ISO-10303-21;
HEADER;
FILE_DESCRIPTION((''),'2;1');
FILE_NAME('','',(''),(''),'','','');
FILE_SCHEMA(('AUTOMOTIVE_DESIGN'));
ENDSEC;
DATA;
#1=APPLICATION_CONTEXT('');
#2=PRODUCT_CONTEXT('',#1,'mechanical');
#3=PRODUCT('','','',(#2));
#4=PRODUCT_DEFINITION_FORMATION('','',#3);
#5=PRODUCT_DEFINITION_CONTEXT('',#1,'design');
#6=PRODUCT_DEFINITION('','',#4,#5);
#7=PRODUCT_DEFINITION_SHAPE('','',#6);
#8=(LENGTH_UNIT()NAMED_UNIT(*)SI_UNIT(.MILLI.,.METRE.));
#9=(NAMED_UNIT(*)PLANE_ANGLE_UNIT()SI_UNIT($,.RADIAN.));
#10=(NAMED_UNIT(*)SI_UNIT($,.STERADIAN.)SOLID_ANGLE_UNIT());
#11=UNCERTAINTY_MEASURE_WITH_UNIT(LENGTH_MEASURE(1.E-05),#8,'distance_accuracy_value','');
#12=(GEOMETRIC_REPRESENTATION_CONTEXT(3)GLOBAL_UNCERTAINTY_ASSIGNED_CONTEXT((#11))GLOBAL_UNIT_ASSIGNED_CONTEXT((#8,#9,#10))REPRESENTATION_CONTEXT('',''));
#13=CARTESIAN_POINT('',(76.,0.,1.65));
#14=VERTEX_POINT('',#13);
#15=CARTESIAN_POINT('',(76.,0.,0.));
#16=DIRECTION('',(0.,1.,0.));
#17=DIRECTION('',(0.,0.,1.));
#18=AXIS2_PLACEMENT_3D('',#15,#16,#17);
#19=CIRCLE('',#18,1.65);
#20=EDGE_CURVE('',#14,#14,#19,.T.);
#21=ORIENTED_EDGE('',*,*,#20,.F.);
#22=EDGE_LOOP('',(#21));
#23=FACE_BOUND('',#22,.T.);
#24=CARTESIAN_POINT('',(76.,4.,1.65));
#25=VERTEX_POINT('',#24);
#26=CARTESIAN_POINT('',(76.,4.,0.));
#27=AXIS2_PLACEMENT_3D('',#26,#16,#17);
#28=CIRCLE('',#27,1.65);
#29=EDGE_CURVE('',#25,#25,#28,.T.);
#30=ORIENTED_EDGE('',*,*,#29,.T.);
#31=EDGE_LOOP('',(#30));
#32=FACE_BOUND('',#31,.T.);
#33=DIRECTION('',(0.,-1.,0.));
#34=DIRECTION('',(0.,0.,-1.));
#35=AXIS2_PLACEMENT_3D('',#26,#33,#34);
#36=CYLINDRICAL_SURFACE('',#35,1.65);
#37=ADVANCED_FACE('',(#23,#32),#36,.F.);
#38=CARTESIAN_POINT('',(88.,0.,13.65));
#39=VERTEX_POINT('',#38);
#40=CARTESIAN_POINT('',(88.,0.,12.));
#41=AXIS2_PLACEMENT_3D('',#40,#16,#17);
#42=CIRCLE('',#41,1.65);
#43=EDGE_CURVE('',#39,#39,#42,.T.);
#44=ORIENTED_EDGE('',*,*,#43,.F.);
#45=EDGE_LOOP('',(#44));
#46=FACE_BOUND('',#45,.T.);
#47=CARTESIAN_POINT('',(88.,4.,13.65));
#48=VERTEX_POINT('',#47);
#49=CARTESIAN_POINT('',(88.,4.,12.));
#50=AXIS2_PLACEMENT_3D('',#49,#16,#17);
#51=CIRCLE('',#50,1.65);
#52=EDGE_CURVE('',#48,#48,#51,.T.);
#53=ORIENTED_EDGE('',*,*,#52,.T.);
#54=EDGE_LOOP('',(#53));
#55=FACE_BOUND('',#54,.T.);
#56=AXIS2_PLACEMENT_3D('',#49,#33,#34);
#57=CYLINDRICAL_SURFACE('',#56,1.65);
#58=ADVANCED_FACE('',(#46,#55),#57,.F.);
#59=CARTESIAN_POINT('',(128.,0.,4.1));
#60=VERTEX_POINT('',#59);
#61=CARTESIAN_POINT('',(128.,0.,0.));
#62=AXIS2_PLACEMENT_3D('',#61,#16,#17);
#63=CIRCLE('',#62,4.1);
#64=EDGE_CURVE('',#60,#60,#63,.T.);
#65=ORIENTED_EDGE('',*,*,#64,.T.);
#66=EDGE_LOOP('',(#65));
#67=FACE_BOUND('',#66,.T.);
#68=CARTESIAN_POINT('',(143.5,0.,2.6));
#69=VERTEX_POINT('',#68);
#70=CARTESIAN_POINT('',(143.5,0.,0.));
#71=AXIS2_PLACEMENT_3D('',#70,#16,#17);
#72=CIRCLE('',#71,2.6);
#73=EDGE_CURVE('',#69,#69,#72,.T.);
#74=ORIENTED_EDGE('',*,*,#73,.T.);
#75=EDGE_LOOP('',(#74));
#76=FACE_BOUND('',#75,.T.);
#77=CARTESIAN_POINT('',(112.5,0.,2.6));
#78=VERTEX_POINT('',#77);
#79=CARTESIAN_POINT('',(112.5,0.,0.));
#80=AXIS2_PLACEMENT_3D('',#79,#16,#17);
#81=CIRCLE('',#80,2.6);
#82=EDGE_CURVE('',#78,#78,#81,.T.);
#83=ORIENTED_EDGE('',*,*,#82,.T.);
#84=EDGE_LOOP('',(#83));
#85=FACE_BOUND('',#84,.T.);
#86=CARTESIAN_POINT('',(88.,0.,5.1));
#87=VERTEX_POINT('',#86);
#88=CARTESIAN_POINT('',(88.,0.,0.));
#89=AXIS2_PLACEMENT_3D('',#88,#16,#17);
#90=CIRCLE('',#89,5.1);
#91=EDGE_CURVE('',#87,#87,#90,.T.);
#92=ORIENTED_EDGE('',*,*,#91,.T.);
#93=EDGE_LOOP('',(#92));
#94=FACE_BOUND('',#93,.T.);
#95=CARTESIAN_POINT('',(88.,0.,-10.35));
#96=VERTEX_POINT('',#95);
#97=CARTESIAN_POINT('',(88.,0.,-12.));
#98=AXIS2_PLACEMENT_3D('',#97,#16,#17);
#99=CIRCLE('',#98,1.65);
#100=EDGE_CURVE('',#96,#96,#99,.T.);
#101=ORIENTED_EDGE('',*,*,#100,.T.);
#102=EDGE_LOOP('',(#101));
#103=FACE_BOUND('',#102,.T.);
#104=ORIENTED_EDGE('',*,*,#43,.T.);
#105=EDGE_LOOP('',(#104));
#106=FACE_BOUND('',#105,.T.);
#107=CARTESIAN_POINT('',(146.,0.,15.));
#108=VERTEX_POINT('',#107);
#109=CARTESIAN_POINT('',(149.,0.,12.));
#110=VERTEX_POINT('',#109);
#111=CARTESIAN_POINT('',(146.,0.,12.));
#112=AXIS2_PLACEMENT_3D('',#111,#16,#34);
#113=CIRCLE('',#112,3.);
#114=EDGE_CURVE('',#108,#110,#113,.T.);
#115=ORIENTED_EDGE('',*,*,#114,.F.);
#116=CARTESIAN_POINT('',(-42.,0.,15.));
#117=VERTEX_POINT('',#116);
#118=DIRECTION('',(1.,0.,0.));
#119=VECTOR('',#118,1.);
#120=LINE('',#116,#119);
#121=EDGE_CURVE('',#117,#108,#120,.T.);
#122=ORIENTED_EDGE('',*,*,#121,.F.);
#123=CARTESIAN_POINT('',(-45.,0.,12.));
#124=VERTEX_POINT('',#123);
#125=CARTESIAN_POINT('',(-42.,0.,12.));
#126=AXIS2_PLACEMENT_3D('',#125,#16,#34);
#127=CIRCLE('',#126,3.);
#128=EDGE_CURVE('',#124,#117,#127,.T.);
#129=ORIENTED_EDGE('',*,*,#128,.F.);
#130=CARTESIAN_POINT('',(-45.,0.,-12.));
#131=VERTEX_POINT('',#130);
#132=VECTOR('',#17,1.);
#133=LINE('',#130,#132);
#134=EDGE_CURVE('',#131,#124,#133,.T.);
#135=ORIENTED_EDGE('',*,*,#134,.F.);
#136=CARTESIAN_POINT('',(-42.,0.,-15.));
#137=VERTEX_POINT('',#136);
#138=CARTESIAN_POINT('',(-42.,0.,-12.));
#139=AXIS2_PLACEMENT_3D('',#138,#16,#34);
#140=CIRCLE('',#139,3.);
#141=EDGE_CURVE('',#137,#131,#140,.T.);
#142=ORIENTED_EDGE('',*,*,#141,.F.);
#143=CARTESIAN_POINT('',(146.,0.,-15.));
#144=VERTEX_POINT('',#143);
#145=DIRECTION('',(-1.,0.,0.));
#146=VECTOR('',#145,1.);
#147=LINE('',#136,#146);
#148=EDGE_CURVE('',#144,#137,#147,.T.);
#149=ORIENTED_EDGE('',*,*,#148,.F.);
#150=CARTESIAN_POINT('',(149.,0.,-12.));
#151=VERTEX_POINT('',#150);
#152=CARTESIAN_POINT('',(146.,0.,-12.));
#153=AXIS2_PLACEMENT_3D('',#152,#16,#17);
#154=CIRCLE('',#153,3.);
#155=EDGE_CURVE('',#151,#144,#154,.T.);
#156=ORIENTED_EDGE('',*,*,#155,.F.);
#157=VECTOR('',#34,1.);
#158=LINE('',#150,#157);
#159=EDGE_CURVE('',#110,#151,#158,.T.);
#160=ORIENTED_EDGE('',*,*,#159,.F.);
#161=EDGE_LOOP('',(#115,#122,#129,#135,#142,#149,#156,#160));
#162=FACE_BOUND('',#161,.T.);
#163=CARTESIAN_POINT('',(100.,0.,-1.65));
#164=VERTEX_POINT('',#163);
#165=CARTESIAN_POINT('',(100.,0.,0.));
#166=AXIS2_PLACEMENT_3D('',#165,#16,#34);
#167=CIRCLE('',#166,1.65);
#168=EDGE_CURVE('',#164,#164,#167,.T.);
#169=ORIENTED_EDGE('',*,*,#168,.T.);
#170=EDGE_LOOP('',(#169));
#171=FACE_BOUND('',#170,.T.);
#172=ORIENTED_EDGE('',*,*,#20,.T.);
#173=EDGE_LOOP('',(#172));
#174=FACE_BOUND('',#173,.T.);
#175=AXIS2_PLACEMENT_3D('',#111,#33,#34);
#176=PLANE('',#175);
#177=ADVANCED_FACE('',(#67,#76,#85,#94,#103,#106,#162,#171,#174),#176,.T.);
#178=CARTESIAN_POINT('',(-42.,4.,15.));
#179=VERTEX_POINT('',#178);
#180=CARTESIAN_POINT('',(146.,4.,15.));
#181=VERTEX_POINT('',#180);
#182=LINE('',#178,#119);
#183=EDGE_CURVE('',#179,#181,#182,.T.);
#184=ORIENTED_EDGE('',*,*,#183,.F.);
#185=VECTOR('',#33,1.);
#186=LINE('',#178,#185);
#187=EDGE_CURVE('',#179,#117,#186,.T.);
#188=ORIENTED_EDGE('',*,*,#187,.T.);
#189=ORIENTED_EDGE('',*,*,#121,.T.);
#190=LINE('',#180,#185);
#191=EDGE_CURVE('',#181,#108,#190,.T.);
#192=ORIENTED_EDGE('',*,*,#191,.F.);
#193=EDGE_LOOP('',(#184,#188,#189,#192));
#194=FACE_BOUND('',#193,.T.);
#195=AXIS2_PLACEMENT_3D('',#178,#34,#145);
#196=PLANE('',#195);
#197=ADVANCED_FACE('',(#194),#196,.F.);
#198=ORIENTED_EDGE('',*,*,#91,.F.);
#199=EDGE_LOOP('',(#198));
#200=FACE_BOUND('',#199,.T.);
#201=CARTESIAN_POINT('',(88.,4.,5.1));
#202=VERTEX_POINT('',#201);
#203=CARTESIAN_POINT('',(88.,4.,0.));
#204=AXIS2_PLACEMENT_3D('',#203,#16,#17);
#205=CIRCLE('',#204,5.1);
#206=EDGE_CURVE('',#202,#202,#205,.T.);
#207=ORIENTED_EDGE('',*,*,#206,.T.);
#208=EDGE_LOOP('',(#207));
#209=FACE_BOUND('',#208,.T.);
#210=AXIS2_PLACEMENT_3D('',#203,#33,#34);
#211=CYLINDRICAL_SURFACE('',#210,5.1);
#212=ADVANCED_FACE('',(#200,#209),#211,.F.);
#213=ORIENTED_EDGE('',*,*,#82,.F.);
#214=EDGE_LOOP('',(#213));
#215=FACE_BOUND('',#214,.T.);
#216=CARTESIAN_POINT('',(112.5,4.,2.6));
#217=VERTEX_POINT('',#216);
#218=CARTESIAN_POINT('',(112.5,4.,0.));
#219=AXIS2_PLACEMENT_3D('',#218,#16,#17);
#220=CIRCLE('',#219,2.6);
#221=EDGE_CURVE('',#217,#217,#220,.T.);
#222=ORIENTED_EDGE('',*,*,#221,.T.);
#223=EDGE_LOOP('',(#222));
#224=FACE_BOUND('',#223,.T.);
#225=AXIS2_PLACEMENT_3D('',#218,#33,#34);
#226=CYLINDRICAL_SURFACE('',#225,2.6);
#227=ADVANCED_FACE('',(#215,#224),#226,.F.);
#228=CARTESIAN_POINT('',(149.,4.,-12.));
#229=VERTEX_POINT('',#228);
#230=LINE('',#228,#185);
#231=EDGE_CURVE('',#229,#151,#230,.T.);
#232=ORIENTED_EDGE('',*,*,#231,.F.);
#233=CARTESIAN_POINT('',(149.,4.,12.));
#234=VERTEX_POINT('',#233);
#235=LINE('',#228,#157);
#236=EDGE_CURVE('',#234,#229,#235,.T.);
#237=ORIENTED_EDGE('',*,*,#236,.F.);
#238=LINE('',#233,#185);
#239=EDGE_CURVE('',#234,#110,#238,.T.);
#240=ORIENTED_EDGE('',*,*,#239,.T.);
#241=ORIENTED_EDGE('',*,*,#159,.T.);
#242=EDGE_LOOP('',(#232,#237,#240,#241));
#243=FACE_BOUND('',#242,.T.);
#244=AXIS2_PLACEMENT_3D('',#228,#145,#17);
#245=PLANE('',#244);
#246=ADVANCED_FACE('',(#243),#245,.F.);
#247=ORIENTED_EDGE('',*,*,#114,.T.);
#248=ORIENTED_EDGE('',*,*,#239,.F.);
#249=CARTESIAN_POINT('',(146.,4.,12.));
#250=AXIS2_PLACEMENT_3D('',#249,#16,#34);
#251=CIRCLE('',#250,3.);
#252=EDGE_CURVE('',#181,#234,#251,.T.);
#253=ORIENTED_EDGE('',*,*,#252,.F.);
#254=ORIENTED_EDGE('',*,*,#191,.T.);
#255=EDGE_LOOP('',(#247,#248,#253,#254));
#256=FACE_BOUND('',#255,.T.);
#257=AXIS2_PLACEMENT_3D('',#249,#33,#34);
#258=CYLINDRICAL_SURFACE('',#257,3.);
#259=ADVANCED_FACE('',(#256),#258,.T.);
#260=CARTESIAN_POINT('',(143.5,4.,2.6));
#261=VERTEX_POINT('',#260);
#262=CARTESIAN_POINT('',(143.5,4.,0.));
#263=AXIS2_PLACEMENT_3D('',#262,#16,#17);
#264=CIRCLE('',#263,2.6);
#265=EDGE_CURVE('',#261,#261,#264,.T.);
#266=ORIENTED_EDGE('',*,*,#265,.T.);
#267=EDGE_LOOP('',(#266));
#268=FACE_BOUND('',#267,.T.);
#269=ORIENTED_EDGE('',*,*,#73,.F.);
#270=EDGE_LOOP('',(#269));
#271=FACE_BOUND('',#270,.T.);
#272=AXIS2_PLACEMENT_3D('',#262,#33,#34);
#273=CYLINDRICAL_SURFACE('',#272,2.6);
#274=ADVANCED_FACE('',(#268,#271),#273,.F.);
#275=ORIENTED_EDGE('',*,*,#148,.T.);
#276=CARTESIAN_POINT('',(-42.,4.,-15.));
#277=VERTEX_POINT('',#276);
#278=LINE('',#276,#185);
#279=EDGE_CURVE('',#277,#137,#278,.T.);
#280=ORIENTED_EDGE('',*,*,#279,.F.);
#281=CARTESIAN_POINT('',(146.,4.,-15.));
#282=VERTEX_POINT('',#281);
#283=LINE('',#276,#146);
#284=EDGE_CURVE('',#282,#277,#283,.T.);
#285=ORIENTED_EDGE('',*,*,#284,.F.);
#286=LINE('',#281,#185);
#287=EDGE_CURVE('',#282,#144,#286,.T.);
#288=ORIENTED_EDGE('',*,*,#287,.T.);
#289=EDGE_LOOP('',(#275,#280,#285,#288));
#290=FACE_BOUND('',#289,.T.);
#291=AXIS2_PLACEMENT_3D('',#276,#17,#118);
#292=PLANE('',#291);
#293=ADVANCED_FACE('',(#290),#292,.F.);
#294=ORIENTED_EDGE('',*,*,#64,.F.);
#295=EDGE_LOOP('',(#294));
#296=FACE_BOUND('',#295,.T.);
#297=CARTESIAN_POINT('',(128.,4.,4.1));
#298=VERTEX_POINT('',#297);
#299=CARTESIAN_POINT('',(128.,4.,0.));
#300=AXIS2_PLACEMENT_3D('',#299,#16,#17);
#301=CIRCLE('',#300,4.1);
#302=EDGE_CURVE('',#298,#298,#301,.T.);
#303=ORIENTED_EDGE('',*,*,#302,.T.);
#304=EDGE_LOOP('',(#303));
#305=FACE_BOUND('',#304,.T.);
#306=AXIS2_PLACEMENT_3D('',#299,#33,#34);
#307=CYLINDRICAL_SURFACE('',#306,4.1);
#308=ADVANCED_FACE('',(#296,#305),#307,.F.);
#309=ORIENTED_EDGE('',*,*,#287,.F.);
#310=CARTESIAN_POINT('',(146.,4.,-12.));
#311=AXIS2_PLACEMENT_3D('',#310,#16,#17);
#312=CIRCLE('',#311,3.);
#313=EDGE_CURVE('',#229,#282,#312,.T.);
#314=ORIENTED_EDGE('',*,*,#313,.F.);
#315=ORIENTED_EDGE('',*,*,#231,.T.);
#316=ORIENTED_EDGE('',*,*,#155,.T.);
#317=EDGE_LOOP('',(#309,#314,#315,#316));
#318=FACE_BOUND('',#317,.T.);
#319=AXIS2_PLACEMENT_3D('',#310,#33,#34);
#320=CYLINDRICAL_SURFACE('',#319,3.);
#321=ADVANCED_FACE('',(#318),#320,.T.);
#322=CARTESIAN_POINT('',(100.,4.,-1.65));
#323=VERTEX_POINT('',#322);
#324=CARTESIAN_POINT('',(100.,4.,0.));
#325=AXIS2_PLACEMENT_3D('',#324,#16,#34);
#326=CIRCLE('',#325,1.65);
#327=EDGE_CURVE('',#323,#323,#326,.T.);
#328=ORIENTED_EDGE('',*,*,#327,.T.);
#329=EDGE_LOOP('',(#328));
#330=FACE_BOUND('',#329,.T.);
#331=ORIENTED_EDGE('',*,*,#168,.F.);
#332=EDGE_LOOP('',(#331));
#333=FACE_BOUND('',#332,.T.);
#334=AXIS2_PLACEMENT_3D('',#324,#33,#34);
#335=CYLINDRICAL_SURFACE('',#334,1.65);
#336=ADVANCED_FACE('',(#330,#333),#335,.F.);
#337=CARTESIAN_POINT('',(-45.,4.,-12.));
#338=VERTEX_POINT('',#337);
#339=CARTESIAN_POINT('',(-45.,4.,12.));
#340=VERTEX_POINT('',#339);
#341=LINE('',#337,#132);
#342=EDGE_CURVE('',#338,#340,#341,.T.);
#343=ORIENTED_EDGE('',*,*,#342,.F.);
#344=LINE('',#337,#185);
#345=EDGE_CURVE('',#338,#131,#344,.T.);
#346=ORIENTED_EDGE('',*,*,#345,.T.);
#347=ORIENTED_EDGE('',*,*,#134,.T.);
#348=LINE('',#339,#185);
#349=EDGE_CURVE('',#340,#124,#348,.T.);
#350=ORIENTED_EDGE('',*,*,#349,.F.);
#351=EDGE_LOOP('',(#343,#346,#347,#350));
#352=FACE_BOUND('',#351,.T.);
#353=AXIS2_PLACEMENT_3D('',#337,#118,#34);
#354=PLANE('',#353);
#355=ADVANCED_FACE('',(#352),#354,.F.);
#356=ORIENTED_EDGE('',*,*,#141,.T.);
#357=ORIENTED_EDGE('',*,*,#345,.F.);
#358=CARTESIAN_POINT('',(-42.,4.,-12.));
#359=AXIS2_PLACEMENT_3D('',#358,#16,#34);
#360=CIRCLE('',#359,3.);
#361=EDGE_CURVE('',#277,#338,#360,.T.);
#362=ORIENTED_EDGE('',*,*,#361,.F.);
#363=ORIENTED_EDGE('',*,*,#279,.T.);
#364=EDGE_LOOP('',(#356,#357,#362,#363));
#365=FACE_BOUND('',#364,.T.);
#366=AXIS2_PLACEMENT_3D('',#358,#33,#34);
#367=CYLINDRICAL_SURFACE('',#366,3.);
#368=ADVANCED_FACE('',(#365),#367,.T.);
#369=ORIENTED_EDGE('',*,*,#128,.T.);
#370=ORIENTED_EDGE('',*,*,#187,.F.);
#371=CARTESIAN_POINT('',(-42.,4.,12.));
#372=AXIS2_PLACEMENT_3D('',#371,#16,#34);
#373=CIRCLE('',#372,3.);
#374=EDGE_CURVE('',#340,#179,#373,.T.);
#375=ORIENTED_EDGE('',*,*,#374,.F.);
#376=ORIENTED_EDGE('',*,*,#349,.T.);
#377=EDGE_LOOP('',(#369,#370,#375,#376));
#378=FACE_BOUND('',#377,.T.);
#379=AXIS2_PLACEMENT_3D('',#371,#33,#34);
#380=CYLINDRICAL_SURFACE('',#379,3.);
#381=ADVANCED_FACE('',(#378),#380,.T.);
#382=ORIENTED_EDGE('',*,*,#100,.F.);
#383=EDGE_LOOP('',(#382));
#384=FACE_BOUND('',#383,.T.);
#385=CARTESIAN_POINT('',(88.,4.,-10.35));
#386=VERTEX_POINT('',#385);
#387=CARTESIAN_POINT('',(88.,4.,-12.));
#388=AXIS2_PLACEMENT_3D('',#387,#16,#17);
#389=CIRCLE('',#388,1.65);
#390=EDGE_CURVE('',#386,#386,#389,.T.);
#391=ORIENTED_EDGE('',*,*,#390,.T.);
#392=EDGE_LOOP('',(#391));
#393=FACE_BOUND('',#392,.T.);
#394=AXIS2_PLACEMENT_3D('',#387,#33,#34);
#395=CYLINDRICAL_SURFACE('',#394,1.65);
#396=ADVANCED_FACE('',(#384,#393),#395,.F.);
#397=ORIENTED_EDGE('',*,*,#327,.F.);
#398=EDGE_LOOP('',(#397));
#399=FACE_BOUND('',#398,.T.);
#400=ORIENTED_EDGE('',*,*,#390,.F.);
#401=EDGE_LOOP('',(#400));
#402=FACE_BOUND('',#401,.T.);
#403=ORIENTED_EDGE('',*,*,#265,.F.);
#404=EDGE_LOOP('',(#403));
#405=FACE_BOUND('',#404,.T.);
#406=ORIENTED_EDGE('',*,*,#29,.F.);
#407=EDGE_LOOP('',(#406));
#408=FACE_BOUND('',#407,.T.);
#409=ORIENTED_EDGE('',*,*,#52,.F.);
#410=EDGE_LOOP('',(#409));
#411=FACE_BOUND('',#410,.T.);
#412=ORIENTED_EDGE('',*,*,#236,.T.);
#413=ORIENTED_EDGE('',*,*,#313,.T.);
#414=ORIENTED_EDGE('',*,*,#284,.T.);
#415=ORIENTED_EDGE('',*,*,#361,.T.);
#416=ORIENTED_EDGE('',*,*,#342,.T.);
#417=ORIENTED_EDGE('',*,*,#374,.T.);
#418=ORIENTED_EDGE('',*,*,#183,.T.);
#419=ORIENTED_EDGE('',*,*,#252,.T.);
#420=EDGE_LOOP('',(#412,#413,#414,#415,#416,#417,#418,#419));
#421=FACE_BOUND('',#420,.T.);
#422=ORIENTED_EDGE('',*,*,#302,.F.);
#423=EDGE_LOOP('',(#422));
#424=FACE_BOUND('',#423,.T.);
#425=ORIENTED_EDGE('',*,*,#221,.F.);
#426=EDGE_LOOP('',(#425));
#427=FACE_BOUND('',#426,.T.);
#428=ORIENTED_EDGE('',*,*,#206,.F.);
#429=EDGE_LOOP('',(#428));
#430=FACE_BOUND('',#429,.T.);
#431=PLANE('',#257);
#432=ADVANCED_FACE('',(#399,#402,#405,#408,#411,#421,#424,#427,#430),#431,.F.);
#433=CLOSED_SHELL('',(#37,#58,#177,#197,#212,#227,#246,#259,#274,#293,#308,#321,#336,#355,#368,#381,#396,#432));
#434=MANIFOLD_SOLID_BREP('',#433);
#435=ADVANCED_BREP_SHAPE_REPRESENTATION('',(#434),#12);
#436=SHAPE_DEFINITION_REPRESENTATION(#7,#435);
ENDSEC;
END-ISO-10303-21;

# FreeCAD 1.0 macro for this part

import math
import FreeCAD as App
import Part
import Sketcher

V = App.Vector
Q = App.Units.Quantity

doc = App.newDocument("Part")
body = doc.addObject("PartDesign::Body", "Body")

# Sketch on XZ plane
sketch1 = body.newObject("Sketcher::SketchObject", "Sketch")
sketch1.AttachmentSupport = (doc.getObject("XZ_Plane"), [""])
sketch1.MapMode = "FlatFace"
sketch1.addGeometry([
    Part.LineSegment(V(146, -15, 0), V(-42, -15, 0)),  # 0
    Part.ArcOfCircle(Part.Circle(V(-42, -12, 0), V(0, 0, 1), 3), math.radians(180), math.radians(270)),  # 1
    Part.LineSegment(V(-45, -12, 0), V(-45, 12, 0)),  # 2
    Part.ArcOfCircle(Part.Circle(V(-42, 12, 0), V(0, 0, 1), 3), math.radians(90), math.radians(180)),  # 3
    Part.LineSegment(V(-42, 15, 0), V(146, 15, 0)),  # 4
    Part.ArcOfCircle(Part.Circle(V(146, 12, 0), V(0, 0, 1), 3), math.radians(0), math.radians(90)),  # 5
    Part.LineSegment(V(149, 12, 0), V(149, -12, 0)),  # 6
    Part.ArcOfCircle(Part.Circle(V(146, -12, 0), V(0, 0, 1), 3), math.radians(-90), math.radians(0)),  # 7
    Part.Circle(V(88, 12, 0), V(0, 0, 1), 1.6),  # 8
    Part.Circle(V(143.5, 0, 0), V(0, 0, 1), 2.6),  # 9
    Part.Circle(V(128, 0, 0), V(0, 0, 1), 4.1),  # 10
    Part.Circle(V(112.5, 0, 0), V(0, 0, 1), 2.6),  # 11
    Part.Circle(V(100, 0, 0), V(0, 0, 1), 1.6),  # 12
    Part.Circle(V(88, 0, 0), V(0, 0, 1), 5.1),  # 13
    Part.Circle(V(76, 0, 0), V(0, 0, 1), 1.6),  # 14
    Part.Circle(V(88, -12, 0), V(0, 0, 1), 1.6),  # 15
], False)
sketch1.addConstraint([
    Sketcher.Constraint("Tangent", 0, 2, 1, 2),
    Sketcher.Constraint("Tangent", 1, 1, 2, 1),
    Sketcher.Constraint("Tangent", 2, 2, 3, 2),
    Sketcher.Constraint("Tangent", 3, 1, 4, 1),
    Sketcher.Constraint("Tangent", 4, 2, 5, 2),
    Sketcher.Constraint("Tangent", 5, 1, 6, 1),
    Sketcher.Constraint("Tangent", 6, 2, 7, 2),
    Sketcher.Constraint("Tangent", 7, 1, 0, 1),
    Sketcher.Constraint("Horizontal", 0),
    Sketcher.Constraint("Vertical", 2),
    Sketcher.Constraint("Horizontal", 4),
    Sketcher.Constraint("Vertical", 6),
    Sketcher.Constraint("Equal", 1, 3),
    Sketcher.Constraint("Equal", 3, 5),
    Sketcher.Constraint("Equal", 5, 7),
    Sketcher.Constraint("Equal", 9, 11),
    Sketcher.Constraint("Equal", 8, 12),
    Sketcher.Constraint("Equal", 12, 14),
    Sketcher.Constraint("Equal", 14, 15),
    Sketcher.Constraint("Symmetric", 8, 3, 15, 3, -1),
    Sketcher.Constraint("PointOnObject", 9, 3, -1),
    Sketcher.Constraint("PointOnObject", 10, 3, -1),
    Sketcher.Constraint("PointOnObject", 11, 3, -1),
    Sketcher.Constraint("PointOnObject", 12, 3, -1),
    Sketcher.Constraint("PointOnObject", 13, 3, -1),
    Sketcher.Constraint("PointOnObject", 14, 3, -1),
    Sketcher.Constraint("Horizontal", 5, 3, 8, 3),
    Sketcher.Constraint("Horizontal", 7, 3, 15, 3),
    Sketcher.Constraint("Vertical", 8, 3, 13, 3),
    Sketcher.Constraint("Radius", 1, Q("3 mm")),
    Sketcher.Constraint("Diameter", 8, Q("3.3 mm")),
    Sketcher.Constraint("Diameter", 9, Q("5.2 mm")),
    Sketcher.Constraint("Diameter", 10, Q("8.2 mm")),
    Sketcher.Constraint("Diameter", 13, Q("10.2 mm")),
    Sketcher.Constraint("DistanceX", 0, 2, 0, 1, Q("188 mm")),
    Sketcher.Constraint("DistanceY", 2, 1, 2, 2, Q("24 mm")),
    Sketcher.Constraint("DistanceX", 1, 3, -1, 1, Q("42 mm")),
    Sketcher.Constraint("DistanceX", -1, 1, 8, 3, Q("88 mm")),
    Sketcher.Constraint("DistanceX", -1, 1, 10, 3, Q("128 mm")),
    Sketcher.Constraint("DistanceX", -1, 1, 12, 3, Q("100 mm")),
    Sketcher.Constraint("DistanceX", -1, 1, 14, 3, Q("76 mm")),
    Sketcher.Constraint("DistanceX", 11, 3, 9, 3, Q("31 mm")),
    Sketcher.Constraint("DistanceX", -1, 1, 9, 3, Q("143.5 mm")),
])
pad1 = body.newObject("PartDesign::Pad", "Pad")
pad1.Profile = sketch1
pad1.Length = 4
pad1.Reversed = True

doc.recompute()
